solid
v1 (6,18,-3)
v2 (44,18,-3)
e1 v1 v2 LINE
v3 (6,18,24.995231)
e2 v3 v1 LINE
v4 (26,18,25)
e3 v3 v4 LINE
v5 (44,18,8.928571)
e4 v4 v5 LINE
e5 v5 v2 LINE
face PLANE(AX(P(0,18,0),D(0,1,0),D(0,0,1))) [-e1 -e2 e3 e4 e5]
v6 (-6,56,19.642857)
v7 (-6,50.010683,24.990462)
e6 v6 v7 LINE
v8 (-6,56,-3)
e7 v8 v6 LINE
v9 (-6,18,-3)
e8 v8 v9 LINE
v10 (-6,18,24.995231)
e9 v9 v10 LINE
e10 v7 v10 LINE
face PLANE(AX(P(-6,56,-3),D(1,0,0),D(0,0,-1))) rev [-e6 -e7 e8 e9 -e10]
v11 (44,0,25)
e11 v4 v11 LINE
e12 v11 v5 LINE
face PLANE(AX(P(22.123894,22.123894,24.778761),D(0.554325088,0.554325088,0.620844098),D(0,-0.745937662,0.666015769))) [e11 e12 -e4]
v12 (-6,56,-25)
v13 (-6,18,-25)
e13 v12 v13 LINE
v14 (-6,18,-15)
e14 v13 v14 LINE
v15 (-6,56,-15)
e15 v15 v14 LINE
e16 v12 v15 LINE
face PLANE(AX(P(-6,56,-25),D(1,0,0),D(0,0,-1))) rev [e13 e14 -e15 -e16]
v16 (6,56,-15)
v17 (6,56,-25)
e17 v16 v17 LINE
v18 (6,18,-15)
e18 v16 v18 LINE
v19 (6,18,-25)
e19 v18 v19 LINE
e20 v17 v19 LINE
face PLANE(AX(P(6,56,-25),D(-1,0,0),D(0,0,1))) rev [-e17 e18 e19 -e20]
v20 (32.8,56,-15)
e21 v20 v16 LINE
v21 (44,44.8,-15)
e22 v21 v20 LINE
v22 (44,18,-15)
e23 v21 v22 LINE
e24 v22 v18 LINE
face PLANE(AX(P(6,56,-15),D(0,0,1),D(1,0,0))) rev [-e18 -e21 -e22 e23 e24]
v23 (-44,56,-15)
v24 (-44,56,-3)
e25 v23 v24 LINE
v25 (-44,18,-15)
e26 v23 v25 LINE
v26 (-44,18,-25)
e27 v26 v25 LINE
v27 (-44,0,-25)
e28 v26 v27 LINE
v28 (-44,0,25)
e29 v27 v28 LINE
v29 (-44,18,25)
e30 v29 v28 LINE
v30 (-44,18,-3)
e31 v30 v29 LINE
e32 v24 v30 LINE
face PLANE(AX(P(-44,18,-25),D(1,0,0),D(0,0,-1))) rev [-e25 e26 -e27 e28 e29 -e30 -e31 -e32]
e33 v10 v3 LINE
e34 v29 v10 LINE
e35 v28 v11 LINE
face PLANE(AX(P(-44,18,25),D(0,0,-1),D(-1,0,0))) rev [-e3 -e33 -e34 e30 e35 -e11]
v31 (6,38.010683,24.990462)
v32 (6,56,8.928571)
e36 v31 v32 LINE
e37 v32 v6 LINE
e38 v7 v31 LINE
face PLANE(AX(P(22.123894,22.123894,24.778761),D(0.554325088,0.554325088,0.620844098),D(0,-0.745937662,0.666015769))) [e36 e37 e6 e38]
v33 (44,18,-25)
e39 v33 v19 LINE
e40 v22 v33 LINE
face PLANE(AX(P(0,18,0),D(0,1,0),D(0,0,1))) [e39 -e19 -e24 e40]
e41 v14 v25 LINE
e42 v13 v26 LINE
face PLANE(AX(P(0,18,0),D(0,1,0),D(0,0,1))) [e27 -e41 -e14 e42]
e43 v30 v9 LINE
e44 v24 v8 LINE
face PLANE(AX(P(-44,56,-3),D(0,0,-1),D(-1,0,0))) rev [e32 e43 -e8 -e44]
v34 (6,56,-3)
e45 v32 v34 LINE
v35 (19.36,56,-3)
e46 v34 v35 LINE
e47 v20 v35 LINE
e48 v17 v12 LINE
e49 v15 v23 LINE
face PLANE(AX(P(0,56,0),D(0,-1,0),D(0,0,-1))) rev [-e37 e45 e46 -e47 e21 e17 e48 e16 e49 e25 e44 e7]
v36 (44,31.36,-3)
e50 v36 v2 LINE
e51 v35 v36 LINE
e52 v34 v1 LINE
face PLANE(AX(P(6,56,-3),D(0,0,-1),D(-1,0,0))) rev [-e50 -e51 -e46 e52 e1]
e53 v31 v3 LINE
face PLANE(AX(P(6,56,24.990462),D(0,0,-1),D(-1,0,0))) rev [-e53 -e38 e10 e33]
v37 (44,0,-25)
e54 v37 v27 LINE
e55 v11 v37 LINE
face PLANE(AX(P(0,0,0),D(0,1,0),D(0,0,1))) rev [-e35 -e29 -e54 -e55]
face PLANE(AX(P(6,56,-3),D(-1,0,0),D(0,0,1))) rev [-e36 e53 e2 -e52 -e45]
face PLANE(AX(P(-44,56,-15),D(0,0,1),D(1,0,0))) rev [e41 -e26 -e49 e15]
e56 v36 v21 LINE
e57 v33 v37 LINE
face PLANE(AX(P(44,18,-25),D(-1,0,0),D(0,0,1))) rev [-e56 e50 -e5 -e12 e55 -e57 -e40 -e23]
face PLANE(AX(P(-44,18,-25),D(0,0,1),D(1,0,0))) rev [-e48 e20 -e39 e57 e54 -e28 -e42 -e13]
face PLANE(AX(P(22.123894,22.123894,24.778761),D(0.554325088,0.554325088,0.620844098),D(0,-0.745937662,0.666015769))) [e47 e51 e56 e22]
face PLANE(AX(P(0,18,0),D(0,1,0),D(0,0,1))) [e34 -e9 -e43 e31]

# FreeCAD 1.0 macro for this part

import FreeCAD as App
import Part
import Sketcher
Q = App.Units.Quantity

doc = App.newDocument("Part")
body = doc.addObject("PartDesign::Body", "Body")

sketch1 = doc.addObject("Sketcher::SketchObject", "Sketch")
body.addObject(sketch1)
sketch1.AttachmentSupport = (doc.XZ_Plane, [""])
sketch1.MapMode = "FlatFace"
sketch1.addGeometry(Part.LineSegment(App.Vector(-44, -25, 0), App.Vector(-44, 25, 0)), False)
sketch1.addGeometry(Part.LineSegment(App.Vector(-44, 25, 0), App.Vector(44, 25, 0)), False)
sketch1.addGeometry(Part.LineSegment(App.Vector(44, 25, 0), App.Vector(44, -25, 0)), False)
sketch1.addGeometry(Part.LineSegment(App.Vector(44, -25, 0), App.Vector(-44, -25, 0)), False)
sketch1.addConstraint(Sketcher.Constraint("Coincident", 0, 2, 1, 1))
sketch1.addConstraint(Sketcher.Constraint("Coincident", 1, 2, 2, 1))
sketch1.addConstraint(Sketcher.Constraint("Coincident", 2, 2, 3, 1))
sketch1.addConstraint(Sketcher.Constraint("Coincident", 3, 2, 0, 1))
sketch1.addConstraint(Sketcher.Constraint("Vertical", 0))
sketch1.addConstraint(Sketcher.Constraint("Horizontal", 1))
sketch1.addConstraint(Sketcher.Constraint("Vertical", 2))
sketch1.addConstraint(Sketcher.Constraint("Horizontal", 3))
sketch1.addConstraint(Sketcher.Constraint("Symmetric", 0, 2, 2, 2, -1, 1))
sketch1.addConstraint(Sketcher.Constraint("DistanceX", 1, 1, 1, 2, Q("88 mm")))
sketch1.addConstraint(Sketcher.Constraint("DistanceY", 0, 1, 0, 2, Q("50 mm")))
pad1 = doc.addObject("PartDesign::Pad", "Pad")
body.addObject(pad1)
pad1.Profile = sketch1
pad1.Length = 18
pad1.Reversed = True

sketch2 = doc.addObject("Sketcher::SketchObject", "Sketch001")
body.addObject(sketch2)
sketch2.AttachmentSupport = (doc.XZ_Plane, [""])
sketch2.MapMode = "FlatFace"
sketch2.AttachmentOffset = App.Placement(App.Vector(0, 0, -18), App.Rotation())
sketch2.addGeometry(Part.LineSegment(App.Vector(-44, -3, 0), App.Vector(-6, -3, 0)), False)
sketch2.addGeometry(Part.LineSegment(App.Vector(-6, -3, 0), App.Vector(-6, 25, 0)), False)
sketch2.addGeometry(Part.LineSegment(App.Vector(-6, 25, 0), App.Vector(6, 25, 0)), False)
sketch2.addGeometry(Part.LineSegment(App.Vector(6, 25, 0), App.Vector(6, -3, 0)), False)
sketch2.addGeometry(Part.LineSegment(App.Vector(6, -3, 0), App.Vector(44, -3, 0)), False)
sketch2.addGeometry(Part.LineSegment(App.Vector(44, -3, 0), App.Vector(44, -15, 0)), False)
sketch2.addGeometry(Part.LineSegment(App.Vector(44, -15, 0), App.Vector(6, -15, 0)), False)
sketch2.addGeometry(Part.LineSegment(App.Vector(6, -15, 0), App.Vector(6, -25, 0)), False)
sketch2.addGeometry(Part.LineSegment(App.Vector(6, -25, 0), App.Vector(-6, -25, 0)), False)
sketch2.addGeometry(Part.LineSegment(App.Vector(-6, -25, 0), App.Vector(-6, -15, 0)), False)
sketch2.addGeometry(Part.LineSegment(App.Vector(-6, -15, 0), App.Vector(-44, -15, 0)), False)
sketch2.addGeometry(Part.LineSegment(App.Vector(-44, -15, 0), App.Vector(-44, -3, 0)), False)
sketch2.addConstraint(Sketcher.Constraint("Coincident", 0, 2, 1, 1))
sketch2.addConstraint(Sketcher.Constraint("Coincident", 1, 2, 2, 1))
sketch2.addConstraint(Sketcher.Constraint("Coincident", 2, 2, 3, 1))
sketch2.addConstraint(Sketcher.Constraint("Coincident", 3, 2, 4, 1))
sketch2.addConstraint(Sketcher.Constraint("Coincident", 4, 2, 5, 1))
sketch2.addConstraint(Sketcher.Constraint("Coincident", 5, 2, 6, 1))
sketch2.addConstraint(Sketcher.Constraint("Coincident", 6, 2, 7, 1))
sketch2.addConstraint(Sketcher.Constraint("Coincident", 7, 2, 8, 1))
sketch2.addConstraint(Sketcher.Constraint("Coincident", 8, 2, 9, 1))
sketch2.addConstraint(Sketcher.Constraint("Coincident", 9, 2, 10, 1))
sketch2.addConstraint(Sketcher.Constraint("Coincident", 10, 2, 11, 1))
sketch2.addConstraint(Sketcher.Constraint("Coincident", 11, 2, 0, 1))
sketch2.addConstraint(Sketcher.Constraint("Horizontal", 0))
sketch2.addConstraint(Sketcher.Constraint("Vertical", 1))
sketch2.addConstraint(Sketcher.Constraint("Horizontal", 2))
sketch2.addConstraint(Sketcher.Constraint("Vertical", 3))
sketch2.addConstraint(Sketcher.Constraint("Horizontal", 4))
sketch2.addConstraint(Sketcher.Constraint("Vertical", 5))
sketch2.addConstraint(Sketcher.Constraint("Horizontal", 6))
sketch2.addConstraint(Sketcher.Constraint("Vertical", 7))
sketch2.addConstraint(Sketcher.Constraint("Horizontal", 8))
sketch2.addConstraint(Sketcher.Constraint("Vertical", 9))
sketch2.addConstraint(Sketcher.Constraint("Horizontal", 10))
sketch2.addConstraint(Sketcher.Constraint("Vertical", 11))
sketch2.addConstraint(Sketcher.Constraint("Symmetric", 0, 2, 3, 2, -2))
sketch2.addConstraint(Sketcher.Constraint("Symmetric", 6, 2, 9, 2, -2))
sketch2.addConstraint(Sketcher.Constraint("Vertical", 3, 2, 6, 2))
sketch2.addConstraint(Sketcher.Constraint("Equal", 0, 4))
sketch2.addConstraint(Sketcher.Constraint("Equal", 8, 5))
sketch2.addConstraint(Sketcher.Constraint("DistanceX", 0, 1, 0, 2, Q("38 mm")))
sketch2.addConstraint(Sketcher.Constraint("DistanceX", 2, 1, 2, 2, Q("12 mm")))
sketch2.addConstraint(Sketcher.Constraint("DistanceY", 7, 2, 7, 1, Q("10 mm")))
sketch2.addConstraint(Sketcher.Constraint("DistanceY", 0, 2, -1, 1, Q("3 mm")))
sketch2.addConstraint(Sketcher.Constraint("DistanceY", 1, 1, 1, 2, Q("27.990462 mm")))
pad2 = doc.addObject("PartDesign::Pad", "Pad001")
body.addObject(pad2)
pad2.Profile = sketch2
pad2.Length = 38
pad2.Reversed = True

sketch3 = doc.addObject("Sketcher::SketchObject", "Sketch002")
body.addObject(sketch3)
sketch3.Placement = App.Placement(App.Vector(22.123894, 22.123894, 24.778761), App.Rotation(App.Vector(-0.832300245, 0.36918925, 0.41349196), App.Vector(0, 0.745937662, -0.66601577), App.Vector(-0.554325088, -0.554325088, -0.620844098), "ZXY"))
sketch3.addGeometry(Part.LineSegment(App.Vector(-30, 56, 0), App.Vector(-30, -20, 0)), False)
sketch3.addGeometry(Part.LineSegment(App.Vector(-30, -20, 0), App.Vector(44, -20, 0)), False)
sketch3.addGeometry(Part.LineSegment(App.Vector(44, -20, 0), App.Vector(44, 56, 0)), False)
sketch3.addGeometry(Part.LineSegment(App.Vector(44, 56, 0), App.Vector(-30, 56, 0)), False)
sketch3.addConstraint(Sketcher.Constraint("Coincident", 0, 2, 1, 1))
sketch3.addConstraint(Sketcher.Constraint("Coincident", 1, 2, 2, 1))
sketch3.addConstraint(Sketcher.Constraint("Coincident", 2, 2, 3, 1))
sketch3.addConstraint(Sketcher.Constraint("Coincident", 3, 2, 0, 1))
sketch3.addConstraint(Sketcher.Constraint("Vertical", 0))
sketch3.addConstraint(Sketcher.Constraint("Horizontal", 1))
sketch3.addConstraint(Sketcher.Constraint("Vertical", 2))
sketch3.addConstraint(Sketcher.Constraint("Horizontal", 3))
sketch3.addConstraint(Sketcher.Constraint("DistanceY", 0, 2, 0, 1, Q("76.5604 mm")))
sketch3.addConstraint(Sketcher.Constraint("DistanceX", 1, 1, 1, 2, Q("74.105007 mm")))
sketch3.addConstraint(Sketcher.Constraint("DistanceY", 0, 2, -1, 1, Q("20.178239 mm")))
sketch3.addConstraint(Sketcher.Constraint("DistanceX", -1, 1, 1, 2, Q("44.38463 mm")))
pocket1 = doc.addObject("PartDesign::Pocket", "Pocket")
body.addObject(pocket1)
pocket1.Profile = sketch3
pocket1.Length = 38

doc.recompute()
